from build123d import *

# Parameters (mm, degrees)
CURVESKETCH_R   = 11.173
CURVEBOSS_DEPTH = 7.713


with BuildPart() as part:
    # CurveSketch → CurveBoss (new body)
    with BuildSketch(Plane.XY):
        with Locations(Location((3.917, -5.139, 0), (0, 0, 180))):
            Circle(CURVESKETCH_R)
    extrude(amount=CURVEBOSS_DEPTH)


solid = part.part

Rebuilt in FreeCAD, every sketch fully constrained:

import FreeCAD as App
import Part
import Sketcher
Q = App.Units.Quantity

doc = App.newDocument("Part")
body = doc.addObject("PartDesign::Body", "Body")

sketch1 = body.newObject("Sketcher::SketchObject", "Sketch")
sketch1.AttachmentSupport = (doc.getObject("XY_Plane"), [""])
sketch1.MapMode = "FlatFace"
sketch1.addGeometry(Part.Circle(App.Vector(4, -5, 0), App.Vector(0, 0, 1), 11), False)
sketch1.addConstraint([
    Sketcher.Constraint("Diameter", 0, Q("22.346 mm")),
    Sketcher.Constraint("DistanceX", -1, 1, 0, 3, Q("3.917 mm")),
    Sketcher.Constraint("DistanceY", 0, 3, -1, 1, Q("5.139 mm")),
])
pad1 = body.newObject("PartDesign::Pad", "Pad")
pad1.Profile = sketch1
pad1.Length = 7.713

doc.recompute()
